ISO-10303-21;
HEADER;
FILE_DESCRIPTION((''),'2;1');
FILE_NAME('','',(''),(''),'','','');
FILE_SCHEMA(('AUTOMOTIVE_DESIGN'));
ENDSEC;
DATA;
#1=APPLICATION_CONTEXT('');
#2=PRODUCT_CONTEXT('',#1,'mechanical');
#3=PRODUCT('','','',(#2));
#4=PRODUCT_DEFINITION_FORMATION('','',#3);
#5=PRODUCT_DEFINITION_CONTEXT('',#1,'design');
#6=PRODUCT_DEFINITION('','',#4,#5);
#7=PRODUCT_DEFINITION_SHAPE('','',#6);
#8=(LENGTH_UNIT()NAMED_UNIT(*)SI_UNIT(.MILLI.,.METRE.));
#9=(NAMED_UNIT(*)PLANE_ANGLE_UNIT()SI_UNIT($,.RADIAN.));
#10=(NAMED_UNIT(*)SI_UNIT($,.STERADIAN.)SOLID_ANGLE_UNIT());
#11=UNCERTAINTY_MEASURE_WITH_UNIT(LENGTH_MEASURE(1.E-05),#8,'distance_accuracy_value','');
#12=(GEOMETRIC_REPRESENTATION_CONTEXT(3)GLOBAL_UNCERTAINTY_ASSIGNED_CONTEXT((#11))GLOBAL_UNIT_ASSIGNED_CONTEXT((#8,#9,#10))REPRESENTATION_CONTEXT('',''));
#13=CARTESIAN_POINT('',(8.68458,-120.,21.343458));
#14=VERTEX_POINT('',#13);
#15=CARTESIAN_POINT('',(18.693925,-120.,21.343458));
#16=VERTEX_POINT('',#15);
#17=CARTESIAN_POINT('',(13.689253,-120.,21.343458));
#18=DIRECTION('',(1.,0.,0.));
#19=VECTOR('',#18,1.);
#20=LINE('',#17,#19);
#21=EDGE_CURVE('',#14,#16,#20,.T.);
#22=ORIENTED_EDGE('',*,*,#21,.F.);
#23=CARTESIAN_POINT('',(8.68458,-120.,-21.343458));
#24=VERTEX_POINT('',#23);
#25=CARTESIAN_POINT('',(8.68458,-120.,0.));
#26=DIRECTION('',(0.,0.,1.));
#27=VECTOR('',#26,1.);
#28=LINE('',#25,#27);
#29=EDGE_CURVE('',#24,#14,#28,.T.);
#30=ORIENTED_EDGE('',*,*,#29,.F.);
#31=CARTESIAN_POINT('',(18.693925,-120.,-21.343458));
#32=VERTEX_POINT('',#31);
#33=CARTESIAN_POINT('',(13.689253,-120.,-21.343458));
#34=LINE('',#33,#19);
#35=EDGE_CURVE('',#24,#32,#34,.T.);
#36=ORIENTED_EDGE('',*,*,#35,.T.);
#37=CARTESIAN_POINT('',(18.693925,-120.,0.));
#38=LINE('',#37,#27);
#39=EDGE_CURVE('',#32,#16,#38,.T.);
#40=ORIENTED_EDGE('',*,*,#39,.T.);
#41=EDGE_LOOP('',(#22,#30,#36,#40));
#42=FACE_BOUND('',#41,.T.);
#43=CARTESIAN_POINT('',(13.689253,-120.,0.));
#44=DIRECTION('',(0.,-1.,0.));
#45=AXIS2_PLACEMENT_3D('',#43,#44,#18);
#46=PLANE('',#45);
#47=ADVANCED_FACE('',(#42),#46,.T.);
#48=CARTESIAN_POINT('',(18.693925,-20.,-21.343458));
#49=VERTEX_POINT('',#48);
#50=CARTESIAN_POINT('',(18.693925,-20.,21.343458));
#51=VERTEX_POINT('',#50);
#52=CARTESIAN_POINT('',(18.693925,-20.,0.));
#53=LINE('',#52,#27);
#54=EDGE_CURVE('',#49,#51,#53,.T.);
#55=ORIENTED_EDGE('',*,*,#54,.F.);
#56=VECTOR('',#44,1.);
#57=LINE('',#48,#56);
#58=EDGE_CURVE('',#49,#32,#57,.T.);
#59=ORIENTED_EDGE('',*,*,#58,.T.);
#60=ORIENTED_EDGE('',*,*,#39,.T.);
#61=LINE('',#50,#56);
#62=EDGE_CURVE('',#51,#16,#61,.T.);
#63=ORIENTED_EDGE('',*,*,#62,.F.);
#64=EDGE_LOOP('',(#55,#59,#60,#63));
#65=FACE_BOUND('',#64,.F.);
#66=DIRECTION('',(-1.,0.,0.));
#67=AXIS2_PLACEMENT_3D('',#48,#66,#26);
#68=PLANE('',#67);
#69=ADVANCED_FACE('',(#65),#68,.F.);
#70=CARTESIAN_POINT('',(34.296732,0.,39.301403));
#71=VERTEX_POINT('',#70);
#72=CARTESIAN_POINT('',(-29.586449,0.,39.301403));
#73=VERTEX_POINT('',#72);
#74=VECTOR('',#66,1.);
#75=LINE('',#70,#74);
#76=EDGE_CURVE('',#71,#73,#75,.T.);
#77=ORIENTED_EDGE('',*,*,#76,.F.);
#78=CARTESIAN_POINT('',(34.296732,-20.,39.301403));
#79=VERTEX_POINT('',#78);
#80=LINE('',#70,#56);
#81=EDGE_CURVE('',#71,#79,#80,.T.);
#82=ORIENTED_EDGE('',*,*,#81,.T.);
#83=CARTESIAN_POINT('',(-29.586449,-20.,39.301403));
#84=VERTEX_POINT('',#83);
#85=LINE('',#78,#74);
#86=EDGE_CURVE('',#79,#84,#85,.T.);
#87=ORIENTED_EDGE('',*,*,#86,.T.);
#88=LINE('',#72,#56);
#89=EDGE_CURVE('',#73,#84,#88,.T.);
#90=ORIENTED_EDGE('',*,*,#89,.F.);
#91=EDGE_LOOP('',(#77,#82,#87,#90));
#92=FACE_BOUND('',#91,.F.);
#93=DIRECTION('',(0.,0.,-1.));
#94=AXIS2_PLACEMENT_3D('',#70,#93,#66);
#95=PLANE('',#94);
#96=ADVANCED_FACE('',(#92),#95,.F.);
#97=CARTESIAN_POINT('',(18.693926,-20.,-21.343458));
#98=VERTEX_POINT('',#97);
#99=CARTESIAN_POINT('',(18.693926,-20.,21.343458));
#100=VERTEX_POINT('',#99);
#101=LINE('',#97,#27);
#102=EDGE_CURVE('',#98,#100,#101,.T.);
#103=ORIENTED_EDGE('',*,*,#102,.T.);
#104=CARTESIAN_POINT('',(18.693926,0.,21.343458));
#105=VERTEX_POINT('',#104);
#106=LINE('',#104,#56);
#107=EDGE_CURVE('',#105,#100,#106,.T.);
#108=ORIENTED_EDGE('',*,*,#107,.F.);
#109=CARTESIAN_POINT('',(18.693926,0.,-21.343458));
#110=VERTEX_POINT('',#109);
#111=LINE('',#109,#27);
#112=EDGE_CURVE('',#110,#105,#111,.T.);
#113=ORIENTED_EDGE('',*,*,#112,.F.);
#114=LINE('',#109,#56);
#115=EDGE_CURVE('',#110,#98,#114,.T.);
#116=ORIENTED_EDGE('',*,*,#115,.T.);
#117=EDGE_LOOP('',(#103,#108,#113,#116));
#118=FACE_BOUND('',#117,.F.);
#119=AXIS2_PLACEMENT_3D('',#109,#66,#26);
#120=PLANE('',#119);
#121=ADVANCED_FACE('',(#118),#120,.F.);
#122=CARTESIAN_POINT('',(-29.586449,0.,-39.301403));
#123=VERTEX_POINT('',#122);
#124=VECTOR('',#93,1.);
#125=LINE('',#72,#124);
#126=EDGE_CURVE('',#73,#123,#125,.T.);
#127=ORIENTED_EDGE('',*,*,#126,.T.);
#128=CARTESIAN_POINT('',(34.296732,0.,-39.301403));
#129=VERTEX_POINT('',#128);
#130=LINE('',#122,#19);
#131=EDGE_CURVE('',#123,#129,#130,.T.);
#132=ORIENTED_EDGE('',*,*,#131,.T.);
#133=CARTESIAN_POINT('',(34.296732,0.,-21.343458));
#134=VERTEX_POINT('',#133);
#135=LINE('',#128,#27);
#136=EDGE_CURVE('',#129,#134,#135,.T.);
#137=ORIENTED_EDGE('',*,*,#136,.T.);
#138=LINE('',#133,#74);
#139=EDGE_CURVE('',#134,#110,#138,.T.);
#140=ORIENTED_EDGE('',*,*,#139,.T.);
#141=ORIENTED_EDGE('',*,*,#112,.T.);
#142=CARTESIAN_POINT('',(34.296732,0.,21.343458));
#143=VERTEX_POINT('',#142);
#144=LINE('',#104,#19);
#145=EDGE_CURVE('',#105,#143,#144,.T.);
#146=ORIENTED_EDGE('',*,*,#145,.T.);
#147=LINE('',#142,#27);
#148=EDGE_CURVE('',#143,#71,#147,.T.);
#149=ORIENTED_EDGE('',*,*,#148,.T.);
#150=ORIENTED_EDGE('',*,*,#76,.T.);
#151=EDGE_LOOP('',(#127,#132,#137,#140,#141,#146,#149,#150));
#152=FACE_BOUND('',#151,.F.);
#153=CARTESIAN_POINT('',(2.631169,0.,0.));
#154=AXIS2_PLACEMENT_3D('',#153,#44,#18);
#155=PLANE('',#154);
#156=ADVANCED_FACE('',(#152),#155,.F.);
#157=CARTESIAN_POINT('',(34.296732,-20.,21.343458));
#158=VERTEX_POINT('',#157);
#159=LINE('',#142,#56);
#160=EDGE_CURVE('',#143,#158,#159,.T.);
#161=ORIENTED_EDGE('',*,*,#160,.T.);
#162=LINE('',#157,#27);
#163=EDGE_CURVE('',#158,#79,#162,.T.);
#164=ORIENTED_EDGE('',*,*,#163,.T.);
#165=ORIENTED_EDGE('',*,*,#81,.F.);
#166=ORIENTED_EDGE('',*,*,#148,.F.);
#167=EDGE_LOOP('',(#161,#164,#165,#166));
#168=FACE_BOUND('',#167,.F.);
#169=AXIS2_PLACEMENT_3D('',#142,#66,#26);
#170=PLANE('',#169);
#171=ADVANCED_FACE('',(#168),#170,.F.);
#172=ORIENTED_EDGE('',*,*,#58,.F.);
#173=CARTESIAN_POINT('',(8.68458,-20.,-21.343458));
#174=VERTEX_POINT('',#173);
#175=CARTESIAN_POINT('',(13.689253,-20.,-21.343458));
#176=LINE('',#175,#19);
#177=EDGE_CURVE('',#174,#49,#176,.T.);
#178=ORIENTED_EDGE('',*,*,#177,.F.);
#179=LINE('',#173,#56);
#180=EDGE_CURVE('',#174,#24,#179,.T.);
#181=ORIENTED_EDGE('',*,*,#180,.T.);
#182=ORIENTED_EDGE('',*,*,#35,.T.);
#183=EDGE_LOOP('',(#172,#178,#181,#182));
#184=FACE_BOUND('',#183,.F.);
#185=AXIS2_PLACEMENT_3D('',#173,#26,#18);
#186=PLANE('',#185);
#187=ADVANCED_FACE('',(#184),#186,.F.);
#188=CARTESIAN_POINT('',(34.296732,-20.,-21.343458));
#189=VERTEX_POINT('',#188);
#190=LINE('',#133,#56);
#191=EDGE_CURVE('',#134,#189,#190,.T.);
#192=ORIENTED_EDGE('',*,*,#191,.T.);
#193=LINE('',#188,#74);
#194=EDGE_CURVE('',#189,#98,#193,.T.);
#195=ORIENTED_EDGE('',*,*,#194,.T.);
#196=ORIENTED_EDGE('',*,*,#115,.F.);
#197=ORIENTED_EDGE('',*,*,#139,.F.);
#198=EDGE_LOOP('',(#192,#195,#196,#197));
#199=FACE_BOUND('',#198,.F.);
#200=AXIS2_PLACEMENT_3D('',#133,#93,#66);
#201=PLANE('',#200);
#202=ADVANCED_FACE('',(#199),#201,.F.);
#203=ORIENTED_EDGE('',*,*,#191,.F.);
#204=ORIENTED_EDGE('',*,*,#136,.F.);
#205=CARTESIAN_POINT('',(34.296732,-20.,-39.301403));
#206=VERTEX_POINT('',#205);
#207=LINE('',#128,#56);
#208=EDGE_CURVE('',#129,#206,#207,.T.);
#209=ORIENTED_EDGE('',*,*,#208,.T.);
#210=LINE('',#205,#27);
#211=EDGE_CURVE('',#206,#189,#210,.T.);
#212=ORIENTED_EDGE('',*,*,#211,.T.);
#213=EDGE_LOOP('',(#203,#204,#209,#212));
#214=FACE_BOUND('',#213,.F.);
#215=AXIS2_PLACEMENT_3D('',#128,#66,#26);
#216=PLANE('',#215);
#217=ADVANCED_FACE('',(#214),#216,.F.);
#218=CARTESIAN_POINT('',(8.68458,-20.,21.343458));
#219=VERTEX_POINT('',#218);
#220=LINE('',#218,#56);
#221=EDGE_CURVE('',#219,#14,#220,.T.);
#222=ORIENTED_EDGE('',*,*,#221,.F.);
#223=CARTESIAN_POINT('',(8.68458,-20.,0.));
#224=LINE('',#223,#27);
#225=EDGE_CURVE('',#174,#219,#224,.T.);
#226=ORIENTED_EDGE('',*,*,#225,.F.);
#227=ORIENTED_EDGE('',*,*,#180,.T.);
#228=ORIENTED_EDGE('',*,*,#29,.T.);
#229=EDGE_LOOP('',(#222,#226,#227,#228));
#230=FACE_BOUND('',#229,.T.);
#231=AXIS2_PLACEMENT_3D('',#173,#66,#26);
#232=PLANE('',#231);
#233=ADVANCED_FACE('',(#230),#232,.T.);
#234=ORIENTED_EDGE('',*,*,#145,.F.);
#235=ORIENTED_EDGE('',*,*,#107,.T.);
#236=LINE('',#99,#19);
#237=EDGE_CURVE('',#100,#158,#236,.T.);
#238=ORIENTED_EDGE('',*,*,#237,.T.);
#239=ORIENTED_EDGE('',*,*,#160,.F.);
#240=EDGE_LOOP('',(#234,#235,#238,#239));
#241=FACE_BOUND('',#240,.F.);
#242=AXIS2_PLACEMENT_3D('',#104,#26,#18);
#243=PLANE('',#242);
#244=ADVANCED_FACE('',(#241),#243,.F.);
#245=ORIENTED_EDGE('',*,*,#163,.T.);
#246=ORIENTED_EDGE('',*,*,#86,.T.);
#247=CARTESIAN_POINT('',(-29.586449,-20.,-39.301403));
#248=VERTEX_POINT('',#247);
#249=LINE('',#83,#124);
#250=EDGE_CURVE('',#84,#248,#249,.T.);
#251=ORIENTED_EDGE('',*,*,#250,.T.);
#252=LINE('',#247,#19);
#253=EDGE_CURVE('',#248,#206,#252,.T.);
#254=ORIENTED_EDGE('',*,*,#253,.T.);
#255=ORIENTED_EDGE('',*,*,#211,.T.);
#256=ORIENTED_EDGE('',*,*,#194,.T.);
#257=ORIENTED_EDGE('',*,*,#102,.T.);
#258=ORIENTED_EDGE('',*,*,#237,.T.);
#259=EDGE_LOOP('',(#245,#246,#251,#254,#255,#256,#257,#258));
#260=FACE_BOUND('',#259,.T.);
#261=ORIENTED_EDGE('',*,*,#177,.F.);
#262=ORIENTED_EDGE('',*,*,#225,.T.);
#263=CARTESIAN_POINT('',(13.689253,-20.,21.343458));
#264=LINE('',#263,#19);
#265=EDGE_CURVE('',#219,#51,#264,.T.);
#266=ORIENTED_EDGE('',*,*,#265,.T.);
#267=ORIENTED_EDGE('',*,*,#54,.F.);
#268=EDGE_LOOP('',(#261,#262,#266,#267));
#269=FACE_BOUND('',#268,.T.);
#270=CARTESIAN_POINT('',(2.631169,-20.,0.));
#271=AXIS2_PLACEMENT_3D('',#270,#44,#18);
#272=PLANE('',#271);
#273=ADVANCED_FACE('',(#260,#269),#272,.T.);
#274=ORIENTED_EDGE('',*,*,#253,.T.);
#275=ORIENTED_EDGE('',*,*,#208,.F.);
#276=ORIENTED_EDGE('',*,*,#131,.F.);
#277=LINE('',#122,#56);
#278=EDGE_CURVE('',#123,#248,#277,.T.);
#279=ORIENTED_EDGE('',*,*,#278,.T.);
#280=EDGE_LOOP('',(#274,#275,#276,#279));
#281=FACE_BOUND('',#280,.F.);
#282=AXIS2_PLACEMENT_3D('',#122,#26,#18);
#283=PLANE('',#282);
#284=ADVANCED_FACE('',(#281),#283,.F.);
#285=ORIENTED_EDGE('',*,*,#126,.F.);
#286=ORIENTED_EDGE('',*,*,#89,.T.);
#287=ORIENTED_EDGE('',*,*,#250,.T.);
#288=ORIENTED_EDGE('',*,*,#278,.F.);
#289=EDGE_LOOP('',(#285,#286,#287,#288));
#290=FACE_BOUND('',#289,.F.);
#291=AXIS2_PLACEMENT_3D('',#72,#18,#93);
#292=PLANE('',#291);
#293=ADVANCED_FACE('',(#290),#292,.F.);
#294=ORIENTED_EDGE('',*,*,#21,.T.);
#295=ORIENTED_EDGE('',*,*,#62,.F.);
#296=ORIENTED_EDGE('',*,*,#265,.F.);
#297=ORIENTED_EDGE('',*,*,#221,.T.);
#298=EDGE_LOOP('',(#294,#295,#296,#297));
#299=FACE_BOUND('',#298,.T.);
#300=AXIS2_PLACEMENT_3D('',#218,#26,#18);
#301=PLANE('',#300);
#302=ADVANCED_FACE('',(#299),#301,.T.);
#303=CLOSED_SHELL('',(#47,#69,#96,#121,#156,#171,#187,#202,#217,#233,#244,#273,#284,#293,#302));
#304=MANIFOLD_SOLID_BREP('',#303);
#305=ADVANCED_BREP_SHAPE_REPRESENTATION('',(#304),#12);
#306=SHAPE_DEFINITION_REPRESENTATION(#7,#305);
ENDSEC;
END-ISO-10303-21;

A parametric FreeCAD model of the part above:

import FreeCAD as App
import Part
import Sketcher

V = App.Vector

doc = App.newDocument("Part")
body = doc.addObject("PartDesign::Body", "Body")

# Sketch on XZ plane
sketch1 = doc.addObject("Sketcher::SketchObject", "Sketch")
body.addObject(sketch1)
sketch1.AttachmentSupport = (doc.XZ_Plane, [""])
sketch1.MapMode = "FlatFace"
sketch1.addGeometry([
    Part.LineSegment(V(-30, 39, 0), V(-30, -39, 0)),  # 0
    Part.LineSegment(V(-30, -39, 0), V(34, -39, 0)),  # 1
    Part.LineSegment(V(34, -39, 0), V(34, -21, 0)),  # 2
    Part.LineSegment(V(34, -21, 0), V(19, -21, 0)),  # 3
    Part.LineSegment(V(19, -21, 0), V(19, 21, 0)),  # 4
    Part.LineSegment(V(19, 21, 0), V(34, 21, 0)),  # 5
    Part.LineSegment(V(34, 21, 0), V(34, 39, 0)),  # 6
    Part.LineSegment(V(34, 39, 0), V(-30, 39, 0)),  # 7
], False)
sketch1.addConstraint([
    Sketcher.Constraint("Coincident", 0, 2, 1, 1),
    Sketcher.Constraint("Coincident", 1, 2, 2, 1),
    Sketcher.Constraint("Coincident", 2, 2, 3, 1),
    Sketcher.Constraint("Coincident", 3, 2, 4, 1),
    Sketcher.Constraint("Coincident", 4, 2, 5, 1),
    Sketcher.Constraint("Coincident", 5, 2, 6, 1),
    Sketcher.Constraint("Coincident", 6, 2, 7, 1),
    Sketcher.Constraint("Coincident", 7, 2, 0, 1),
    Sketcher.Constraint("Vertical", 0),
    Sketcher.Constraint("Horizontal", 1),
    Sketcher.Constraint("Vertical", 2),
    Sketcher.Constraint("Horizontal", 3),
    Sketcher.Constraint("Vertical", 4),
    Sketcher.Constraint("Horizontal", 5),
    Sketcher.Constraint("Vertical", 6),
    Sketcher.Constraint("Horizontal", 7),
    Sketcher.Constraint("Symmetric", 2, 2, 5, 2, -1),
    Sketcher.Constraint("Equal", 2, 6),
    Sketcher.Constraint("DistanceX", 1, 1, 1, 2, 63.883181),
    Sketcher.Constraint("DistanceX", 3, 2, 3, 1, 15.602806),
    Sketcher.Constraint("DistanceY", 0, 2, 0, 1, 78.602806),
    Sketcher.Constraint("DistanceY", 2, 1, 2, 2, 17.957945),
    Sketcher.Constraint("DistanceX", 0, 2, -1, 1, 29.586449),
])
pad1 = doc.addObject("PartDesign::Pad", "Pad")
body.addObject(pad1)
pad1.Profile = sketch1
pad1.Length = 20

# Sketch on XZ plane
sketch2 = doc.addObject("Sketcher::SketchObject", "Sketch001")
body.addObject(sketch2)
sketch2.AttachmentSupport = (doc.XZ_Plane, [""])
sketch2.MapMode = "FlatFace"
sketch2.AttachmentOffset = App.Placement(V(0, 0, 20), App.Rotation())
sketch2.addGeometry([
    Part.LineSegment(V(9, 21, 0), V(9, -21, 0)),
    Part.LineSegment(V(9, -21, 0), V(19, -21, 0)),
    Part.LineSegment(V(19, -21, 0), V(19, 21, 0)),
    Part.LineSegment(V(19, 21, 0), V(9, 21, 0)),
], False)
sketch2.addConstraint([
    Sketcher.Constraint("Coincident", 0, 2, 1, 1),
    Sketcher.Constraint("Coincident", 1, 2, 2, 1),
    Sketcher.Constraint("Coincident", 2, 2, 3, 1),
    Sketcher.Constraint("Coincident", 3, 2, 0, 1),
    Sketcher.Constraint("Vertical", 0),
    Sketcher.Constraint("Horizontal", 1),
    Sketcher.Constraint("Vertical", 2),
    Sketcher.Constraint("Horizontal", 3),
    Sketcher.Constraint("DistanceX", 1, 1, 1, 2, 10.009345),
    Sketcher.Constraint("DistanceY", 0, 2, 0, 1, 42.686916),
    Sketcher.Constraint("DistanceX", -1, 1, 0, 2, 8.68458),
    Sketcher.Constraint("DistanceY", 0, 2, -1, 1, 21.343458),
])
pad2 = doc.addObject("PartDesign::Pad", "Pad001")
body.addObject(pad2)
pad2.Profile = sketch2
pad2.Length = 100

doc.recompute()
